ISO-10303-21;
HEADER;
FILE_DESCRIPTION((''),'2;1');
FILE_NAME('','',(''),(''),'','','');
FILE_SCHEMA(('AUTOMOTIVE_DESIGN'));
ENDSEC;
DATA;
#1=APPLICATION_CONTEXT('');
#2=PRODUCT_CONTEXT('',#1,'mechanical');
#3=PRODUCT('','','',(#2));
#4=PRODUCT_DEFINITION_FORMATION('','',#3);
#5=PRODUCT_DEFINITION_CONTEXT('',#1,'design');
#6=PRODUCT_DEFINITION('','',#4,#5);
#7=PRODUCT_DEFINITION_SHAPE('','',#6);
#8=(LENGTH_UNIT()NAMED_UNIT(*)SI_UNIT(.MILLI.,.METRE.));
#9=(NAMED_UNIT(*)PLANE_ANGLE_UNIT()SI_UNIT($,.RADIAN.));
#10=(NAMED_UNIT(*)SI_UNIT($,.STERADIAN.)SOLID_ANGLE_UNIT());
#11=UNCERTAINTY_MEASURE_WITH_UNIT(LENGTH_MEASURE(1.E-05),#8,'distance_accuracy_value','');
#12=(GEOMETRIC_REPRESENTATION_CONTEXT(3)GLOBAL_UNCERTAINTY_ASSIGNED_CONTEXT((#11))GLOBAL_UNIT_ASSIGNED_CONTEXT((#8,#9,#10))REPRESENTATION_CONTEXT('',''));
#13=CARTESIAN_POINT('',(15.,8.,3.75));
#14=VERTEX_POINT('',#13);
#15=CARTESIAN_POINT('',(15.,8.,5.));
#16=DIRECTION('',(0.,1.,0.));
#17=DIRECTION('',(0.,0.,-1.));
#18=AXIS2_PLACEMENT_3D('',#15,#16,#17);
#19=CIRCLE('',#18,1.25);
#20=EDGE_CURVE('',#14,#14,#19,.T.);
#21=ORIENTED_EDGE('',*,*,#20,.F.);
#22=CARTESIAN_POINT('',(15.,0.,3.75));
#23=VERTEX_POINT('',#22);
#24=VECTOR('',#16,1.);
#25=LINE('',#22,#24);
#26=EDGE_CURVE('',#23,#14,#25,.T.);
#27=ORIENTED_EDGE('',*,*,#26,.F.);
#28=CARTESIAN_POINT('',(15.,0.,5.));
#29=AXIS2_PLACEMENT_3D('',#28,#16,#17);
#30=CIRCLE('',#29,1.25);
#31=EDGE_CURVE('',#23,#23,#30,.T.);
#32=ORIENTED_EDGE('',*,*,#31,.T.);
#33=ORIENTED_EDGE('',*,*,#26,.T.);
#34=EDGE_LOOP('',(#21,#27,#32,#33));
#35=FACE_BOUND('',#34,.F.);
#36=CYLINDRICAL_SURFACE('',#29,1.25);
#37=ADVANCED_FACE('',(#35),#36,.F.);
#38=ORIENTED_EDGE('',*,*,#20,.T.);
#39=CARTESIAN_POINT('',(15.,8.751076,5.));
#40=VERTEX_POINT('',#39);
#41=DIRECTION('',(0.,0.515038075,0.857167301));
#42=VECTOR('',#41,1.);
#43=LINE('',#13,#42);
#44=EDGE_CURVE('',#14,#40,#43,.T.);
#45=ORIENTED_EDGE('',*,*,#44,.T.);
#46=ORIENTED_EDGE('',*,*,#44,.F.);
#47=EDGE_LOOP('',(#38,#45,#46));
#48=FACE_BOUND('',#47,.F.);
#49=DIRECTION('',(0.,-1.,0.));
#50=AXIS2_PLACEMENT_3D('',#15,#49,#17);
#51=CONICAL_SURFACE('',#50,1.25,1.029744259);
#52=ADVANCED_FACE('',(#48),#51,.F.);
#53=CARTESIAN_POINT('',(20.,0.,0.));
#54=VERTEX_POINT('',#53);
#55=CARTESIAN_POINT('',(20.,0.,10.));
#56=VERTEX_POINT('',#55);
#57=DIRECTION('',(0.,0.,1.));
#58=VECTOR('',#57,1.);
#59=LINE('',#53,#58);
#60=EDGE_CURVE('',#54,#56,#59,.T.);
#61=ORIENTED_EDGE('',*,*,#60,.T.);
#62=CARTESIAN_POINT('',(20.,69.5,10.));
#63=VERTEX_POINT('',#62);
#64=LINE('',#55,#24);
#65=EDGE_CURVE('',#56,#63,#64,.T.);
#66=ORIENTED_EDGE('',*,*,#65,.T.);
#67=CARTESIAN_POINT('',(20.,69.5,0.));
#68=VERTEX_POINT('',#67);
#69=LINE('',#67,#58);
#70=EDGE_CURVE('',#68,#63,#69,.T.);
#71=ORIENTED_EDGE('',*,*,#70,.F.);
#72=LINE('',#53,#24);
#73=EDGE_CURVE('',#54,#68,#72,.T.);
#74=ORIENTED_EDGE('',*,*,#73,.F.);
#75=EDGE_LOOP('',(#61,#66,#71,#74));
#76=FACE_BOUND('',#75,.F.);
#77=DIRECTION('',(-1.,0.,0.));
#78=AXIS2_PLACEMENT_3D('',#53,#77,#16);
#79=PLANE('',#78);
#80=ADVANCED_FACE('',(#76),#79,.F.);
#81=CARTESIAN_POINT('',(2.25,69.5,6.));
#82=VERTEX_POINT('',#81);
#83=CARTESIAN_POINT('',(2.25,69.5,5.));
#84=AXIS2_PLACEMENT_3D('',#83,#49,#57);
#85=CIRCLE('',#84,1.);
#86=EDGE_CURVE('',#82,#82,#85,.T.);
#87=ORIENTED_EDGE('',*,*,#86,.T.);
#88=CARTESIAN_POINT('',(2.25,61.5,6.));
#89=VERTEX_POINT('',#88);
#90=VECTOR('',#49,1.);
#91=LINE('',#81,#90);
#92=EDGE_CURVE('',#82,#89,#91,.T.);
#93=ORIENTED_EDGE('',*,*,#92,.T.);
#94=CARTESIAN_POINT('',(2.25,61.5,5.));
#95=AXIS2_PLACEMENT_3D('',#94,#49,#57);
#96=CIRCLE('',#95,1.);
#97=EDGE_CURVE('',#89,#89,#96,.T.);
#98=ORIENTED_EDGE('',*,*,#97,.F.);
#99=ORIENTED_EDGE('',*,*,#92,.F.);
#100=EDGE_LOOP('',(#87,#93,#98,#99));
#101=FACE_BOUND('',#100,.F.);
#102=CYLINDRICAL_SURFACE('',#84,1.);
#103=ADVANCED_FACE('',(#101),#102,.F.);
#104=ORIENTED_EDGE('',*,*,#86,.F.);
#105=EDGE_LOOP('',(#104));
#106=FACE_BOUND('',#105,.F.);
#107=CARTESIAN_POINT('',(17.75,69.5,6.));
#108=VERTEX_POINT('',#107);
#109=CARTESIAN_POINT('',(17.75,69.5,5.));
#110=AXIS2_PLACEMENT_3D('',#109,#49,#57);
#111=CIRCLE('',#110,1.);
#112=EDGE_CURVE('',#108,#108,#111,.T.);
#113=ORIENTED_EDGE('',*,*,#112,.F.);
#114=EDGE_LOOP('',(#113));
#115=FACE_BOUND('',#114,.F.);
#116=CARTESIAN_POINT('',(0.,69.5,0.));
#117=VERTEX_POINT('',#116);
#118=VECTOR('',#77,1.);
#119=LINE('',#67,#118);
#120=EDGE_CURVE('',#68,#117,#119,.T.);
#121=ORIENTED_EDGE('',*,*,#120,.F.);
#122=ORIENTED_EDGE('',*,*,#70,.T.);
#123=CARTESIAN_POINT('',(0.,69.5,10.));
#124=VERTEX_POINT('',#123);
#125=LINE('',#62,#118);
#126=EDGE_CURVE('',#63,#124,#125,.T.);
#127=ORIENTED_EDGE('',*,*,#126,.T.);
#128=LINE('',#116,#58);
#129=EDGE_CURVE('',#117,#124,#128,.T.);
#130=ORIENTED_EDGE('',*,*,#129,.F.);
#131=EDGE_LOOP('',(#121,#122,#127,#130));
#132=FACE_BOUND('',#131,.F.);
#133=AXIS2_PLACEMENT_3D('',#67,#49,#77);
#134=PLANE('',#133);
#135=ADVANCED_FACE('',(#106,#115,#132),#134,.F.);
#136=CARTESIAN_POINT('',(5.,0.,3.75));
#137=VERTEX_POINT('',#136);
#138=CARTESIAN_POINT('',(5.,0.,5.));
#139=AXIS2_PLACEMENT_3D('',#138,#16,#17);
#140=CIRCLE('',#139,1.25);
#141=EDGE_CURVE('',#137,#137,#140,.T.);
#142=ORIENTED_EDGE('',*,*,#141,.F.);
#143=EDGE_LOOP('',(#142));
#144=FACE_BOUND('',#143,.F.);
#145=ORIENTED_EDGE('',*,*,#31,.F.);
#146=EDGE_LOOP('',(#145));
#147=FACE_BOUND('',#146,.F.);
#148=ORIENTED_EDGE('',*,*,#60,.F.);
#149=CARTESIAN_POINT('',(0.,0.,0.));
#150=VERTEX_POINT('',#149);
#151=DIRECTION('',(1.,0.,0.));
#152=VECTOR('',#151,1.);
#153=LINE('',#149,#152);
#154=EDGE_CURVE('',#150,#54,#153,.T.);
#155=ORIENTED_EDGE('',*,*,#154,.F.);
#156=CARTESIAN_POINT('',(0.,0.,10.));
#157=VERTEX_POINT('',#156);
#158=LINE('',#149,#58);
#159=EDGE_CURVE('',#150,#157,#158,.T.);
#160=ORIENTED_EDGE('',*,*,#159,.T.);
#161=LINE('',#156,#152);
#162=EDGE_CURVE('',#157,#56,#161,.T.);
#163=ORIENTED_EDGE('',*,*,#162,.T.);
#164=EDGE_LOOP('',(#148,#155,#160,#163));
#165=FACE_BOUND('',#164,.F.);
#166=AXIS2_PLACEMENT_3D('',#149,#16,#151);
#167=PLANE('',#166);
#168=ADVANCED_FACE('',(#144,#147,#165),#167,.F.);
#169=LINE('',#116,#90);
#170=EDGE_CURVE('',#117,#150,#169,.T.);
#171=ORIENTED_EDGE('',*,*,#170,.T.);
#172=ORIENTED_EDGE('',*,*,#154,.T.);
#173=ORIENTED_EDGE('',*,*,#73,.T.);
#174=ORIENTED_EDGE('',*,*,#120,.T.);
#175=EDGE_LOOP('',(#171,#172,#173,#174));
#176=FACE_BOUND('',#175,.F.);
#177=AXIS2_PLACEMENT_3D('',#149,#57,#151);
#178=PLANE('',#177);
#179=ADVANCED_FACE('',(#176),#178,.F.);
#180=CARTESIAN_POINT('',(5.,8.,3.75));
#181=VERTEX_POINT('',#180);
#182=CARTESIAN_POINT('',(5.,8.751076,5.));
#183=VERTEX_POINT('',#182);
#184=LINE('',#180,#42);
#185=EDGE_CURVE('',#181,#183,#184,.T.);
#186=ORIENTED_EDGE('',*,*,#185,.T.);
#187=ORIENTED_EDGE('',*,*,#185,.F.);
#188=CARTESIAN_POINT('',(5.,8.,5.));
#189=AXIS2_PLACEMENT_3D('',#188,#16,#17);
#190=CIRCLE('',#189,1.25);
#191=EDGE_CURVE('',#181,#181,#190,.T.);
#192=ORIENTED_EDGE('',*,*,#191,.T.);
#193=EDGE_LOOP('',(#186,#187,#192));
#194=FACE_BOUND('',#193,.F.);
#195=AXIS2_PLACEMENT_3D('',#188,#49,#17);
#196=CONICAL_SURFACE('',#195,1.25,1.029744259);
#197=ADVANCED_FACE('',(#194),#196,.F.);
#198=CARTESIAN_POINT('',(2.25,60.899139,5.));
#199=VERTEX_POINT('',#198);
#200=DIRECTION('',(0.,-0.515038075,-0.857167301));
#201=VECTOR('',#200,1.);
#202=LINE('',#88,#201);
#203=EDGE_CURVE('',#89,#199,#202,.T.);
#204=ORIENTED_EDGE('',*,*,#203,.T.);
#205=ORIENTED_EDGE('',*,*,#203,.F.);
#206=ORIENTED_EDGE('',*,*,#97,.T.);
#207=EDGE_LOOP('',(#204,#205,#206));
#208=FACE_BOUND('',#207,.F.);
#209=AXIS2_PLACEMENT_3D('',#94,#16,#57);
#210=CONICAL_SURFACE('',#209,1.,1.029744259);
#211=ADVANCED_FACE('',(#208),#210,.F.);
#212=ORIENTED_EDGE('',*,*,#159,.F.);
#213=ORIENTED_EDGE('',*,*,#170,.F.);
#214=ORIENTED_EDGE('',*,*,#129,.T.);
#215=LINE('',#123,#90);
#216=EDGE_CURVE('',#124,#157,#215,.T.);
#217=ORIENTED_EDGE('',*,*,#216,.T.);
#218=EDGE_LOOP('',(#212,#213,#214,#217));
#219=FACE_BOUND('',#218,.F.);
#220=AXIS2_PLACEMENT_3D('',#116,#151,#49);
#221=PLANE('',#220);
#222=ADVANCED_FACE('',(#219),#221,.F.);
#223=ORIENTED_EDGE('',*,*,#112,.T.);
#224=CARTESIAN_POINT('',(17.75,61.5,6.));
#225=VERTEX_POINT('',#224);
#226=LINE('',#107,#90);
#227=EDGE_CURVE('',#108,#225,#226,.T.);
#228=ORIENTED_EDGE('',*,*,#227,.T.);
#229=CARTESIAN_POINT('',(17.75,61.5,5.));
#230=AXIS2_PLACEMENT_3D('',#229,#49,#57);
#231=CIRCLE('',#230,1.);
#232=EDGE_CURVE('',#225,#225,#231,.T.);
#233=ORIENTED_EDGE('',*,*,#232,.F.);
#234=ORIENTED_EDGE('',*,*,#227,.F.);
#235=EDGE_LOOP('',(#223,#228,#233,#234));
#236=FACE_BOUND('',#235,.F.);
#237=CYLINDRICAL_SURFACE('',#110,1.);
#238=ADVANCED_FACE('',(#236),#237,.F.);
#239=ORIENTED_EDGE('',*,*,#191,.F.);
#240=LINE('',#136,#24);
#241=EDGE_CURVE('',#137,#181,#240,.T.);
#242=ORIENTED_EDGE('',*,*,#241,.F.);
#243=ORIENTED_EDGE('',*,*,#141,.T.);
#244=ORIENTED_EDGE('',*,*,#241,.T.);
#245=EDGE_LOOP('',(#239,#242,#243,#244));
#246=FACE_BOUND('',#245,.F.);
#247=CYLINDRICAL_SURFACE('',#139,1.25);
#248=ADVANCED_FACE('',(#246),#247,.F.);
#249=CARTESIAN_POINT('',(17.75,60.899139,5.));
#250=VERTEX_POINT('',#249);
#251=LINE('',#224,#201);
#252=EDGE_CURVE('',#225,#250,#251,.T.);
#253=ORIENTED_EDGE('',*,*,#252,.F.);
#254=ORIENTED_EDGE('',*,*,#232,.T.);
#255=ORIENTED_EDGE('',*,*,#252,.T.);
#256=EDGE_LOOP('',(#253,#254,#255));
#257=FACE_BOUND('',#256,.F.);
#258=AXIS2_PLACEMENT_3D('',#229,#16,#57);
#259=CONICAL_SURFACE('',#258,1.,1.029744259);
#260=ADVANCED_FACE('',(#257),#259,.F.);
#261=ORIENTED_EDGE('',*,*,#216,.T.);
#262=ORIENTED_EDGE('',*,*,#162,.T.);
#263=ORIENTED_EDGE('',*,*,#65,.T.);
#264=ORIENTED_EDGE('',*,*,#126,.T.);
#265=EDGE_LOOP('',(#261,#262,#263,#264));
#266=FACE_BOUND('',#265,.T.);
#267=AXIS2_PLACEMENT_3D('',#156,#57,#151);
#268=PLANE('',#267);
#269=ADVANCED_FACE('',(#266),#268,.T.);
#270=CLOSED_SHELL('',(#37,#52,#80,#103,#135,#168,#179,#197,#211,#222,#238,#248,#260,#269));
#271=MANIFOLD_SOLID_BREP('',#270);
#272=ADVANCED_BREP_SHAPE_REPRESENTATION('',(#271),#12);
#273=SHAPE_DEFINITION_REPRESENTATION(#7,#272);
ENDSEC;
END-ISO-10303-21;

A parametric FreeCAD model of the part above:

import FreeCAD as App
import Part
import Sketcher
from FreeCAD import Vector
Q = App.Units.Quantity


def add_polygon(sketch, points):
    """Adds a closed chain of lines whose ends are joined by coincident constraints."""
    first, n = sketch.GeometryCount, len(points)
    for a, b in zip(points, points[1:] + points[:1]):
        sketch.addGeometry(Part.LineSegment(App.Vector(*a, 0), App.Vector(*b, 0)), False)
    for i in range(n):
        sketch.addConstraint(Sketcher.Constraint("Coincident", first + i, 2, first + (i + 1) % n, 1))

doc = App.newDocument("Part")
params = doc.addObject("Spreadsheet::Sheet", "Params")
for row, (alias, value) in enumerate([
    ("sketch1_width", "20 mm"),
    ("sketch1_height", "69.5 mm"),
    ("pad1_length", "10 mm"),
    ("sketch2_diameter", "2 mm"),
    ("hole_diameter", "2 mm"),
    ("hole_depth", "8 mm"),
    ("sketch3_diameter", "2.5 mm"),
    ("hole2_diameter", "2.5 mm"),
    ("hole2_depth", "8 mm"),
], start=1):
    params.set(f"A{row}", alias)
    params.set(f"B{row}", "=" + value)
    params.setAlias(f"B{row}", alias)

body = doc.addObject("PartDesign::Body", "Body")

# Sketch on XY plane
sketch1 = body.newObject("Sketcher::SketchObject", "Sketch")
sketch1.AttachmentSupport = (doc.getObject("XY_Plane"), [""])
sketch1.MapMode = "FlatFace"
add_polygon(sketch1, [(0, 70), (0, 0), (20, 0), (20, 70)])  # lines 0-3
sketch1.addConstraint(Sketcher.Constraint("Vertical", 0))
sketch1.addConstraint(Sketcher.Constraint("Horizontal", 1))
sketch1.addConstraint(Sketcher.Constraint("Vertical", 2))
sketch1.addConstraint(Sketcher.Constraint("Horizontal", 3))
sketch1.addConstraint(Sketcher.Constraint("Coincident", 0, 2, -1, 1))
sketch1.addConstraint(Sketcher.Constraint("DistanceX", 1, 1, 1, 2, Q("20 mm")))
sketch1.addConstraint(Sketcher.Constraint("DistanceY", 0, 2, 0, 1, Q("69.5 mm")))
sketch1.setExpression("Constraints[9]", "Params.sketch1_width")
sketch1.setExpression("Constraints[10]", "Params.sketch1_height")
pad1 = body.newObject("PartDesign::Pad", "Pad")
pad1.Profile = sketch1
pad1.setExpression("Length", "Params.pad1_length")

# Sketch on XZ plane
sketch2 = body.newObject("Sketcher::SketchObject", "Sketch001")
sketch2.AttachmentSupport = (doc.getObject("XZ_Plane"), [""])
sketch2.MapMode = "FlatFace"
sketch2.AttachmentOffset = App.Placement(Vector(0, 0, -69.5), App.Rotation())
sketch2.addGeometry(Part.Circle(Vector(2.2, 5, 0), Vector(0, 0, 1), 1), False)
sketch2.addGeometry(Part.Circle(Vector(17.8, 5, 0), Vector(0, 0, 1), 1), False)
sketch2.addConstraint(Sketcher.Constraint("Equal", 0, 1))
sketch2.addConstraint(Sketcher.Constraint("Horizontal", 0, 3, 1, 3))
sketch2.addConstraint(Sketcher.Constraint("Diameter", 0, Q("2 mm")))
sketch2.addConstraint(Sketcher.Constraint("DistanceY", -1, 1, 0, 3, Q("5 mm")))
sketch2.addConstraint(Sketcher.Constraint("DistanceX", 0, 3, 1, 3, Q("15.5 mm")))
sketch2.addConstraint(Sketcher.Constraint("DistanceX", -1, 1, 0, 3, Q("2.25 mm")))
sketch2.setExpression("Constraints[2]", "Params.sketch2_diameter")
doc.recompute()
hole = body.newObject("PartDesign::Hole", "Hole")
hole.Profile = sketch2
hole.ThreadType = "None"
hole.setExpression("Diameter", "Params.hole_diameter")
hole.DepthType = "Dimension"
hole.setExpression("Depth", "Params.hole_depth")
hole.DrillPoint = "Angled"
hole.DrillPointAngle = 118
hole.Reversed = True

# Sketch on XZ plane
sketch3 = body.newObject("Sketcher::SketchObject", "Sketch002")
sketch3.AttachmentSupport = (doc.getObject("XZ_Plane"), [""])
sketch3.MapMode = "FlatFace"
sketch3.addGeometry(Part.Circle(Vector(5, 5, 0), Vector(0, 0, 1), 1.2), False)
sketch3.addGeometry(Part.Circle(Vector(15, 5, 0), Vector(0, 0, 1), 1.2), False)
sketch3.addConstraint(Sketcher.Constraint("Equal", 0, 1))
sketch3.addConstraint(Sketcher.Constraint("Horizontal", 0, 3, 1, 3))
sketch3.addConstraint(Sketcher.Constraint("Diameter", 0, Q("2.5 mm")))
sketch3.addConstraint(Sketcher.Constraint("DistanceX", -1, 1, 0, 3, Q("5 mm")))
sketch3.addConstraint(Sketcher.Constraint("DistanceY", -1, 1, 0, 3, Q("5 mm")))
sketch3.addConstraint(Sketcher.Constraint("DistanceX", -1, 1, 1, 3, Q("15 mm")))
sketch3.setExpression("Constraints[2]", "Params.sketch3_diameter")
doc.recompute()
hole2 = body.newObject("PartDesign::Hole", "Hole001")
hole2.Profile = sketch3
hole2.ThreadType = "None"
hole2.setExpression("Diameter", "Params.hole2_diameter")
hole2.DepthType = "Dimension"
hole2.setExpression("Depth", "Params.hole2_depth")
hole2.DrillPoint = "Angled"
hole2.DrillPointAngle = 118

doc.recompute()
